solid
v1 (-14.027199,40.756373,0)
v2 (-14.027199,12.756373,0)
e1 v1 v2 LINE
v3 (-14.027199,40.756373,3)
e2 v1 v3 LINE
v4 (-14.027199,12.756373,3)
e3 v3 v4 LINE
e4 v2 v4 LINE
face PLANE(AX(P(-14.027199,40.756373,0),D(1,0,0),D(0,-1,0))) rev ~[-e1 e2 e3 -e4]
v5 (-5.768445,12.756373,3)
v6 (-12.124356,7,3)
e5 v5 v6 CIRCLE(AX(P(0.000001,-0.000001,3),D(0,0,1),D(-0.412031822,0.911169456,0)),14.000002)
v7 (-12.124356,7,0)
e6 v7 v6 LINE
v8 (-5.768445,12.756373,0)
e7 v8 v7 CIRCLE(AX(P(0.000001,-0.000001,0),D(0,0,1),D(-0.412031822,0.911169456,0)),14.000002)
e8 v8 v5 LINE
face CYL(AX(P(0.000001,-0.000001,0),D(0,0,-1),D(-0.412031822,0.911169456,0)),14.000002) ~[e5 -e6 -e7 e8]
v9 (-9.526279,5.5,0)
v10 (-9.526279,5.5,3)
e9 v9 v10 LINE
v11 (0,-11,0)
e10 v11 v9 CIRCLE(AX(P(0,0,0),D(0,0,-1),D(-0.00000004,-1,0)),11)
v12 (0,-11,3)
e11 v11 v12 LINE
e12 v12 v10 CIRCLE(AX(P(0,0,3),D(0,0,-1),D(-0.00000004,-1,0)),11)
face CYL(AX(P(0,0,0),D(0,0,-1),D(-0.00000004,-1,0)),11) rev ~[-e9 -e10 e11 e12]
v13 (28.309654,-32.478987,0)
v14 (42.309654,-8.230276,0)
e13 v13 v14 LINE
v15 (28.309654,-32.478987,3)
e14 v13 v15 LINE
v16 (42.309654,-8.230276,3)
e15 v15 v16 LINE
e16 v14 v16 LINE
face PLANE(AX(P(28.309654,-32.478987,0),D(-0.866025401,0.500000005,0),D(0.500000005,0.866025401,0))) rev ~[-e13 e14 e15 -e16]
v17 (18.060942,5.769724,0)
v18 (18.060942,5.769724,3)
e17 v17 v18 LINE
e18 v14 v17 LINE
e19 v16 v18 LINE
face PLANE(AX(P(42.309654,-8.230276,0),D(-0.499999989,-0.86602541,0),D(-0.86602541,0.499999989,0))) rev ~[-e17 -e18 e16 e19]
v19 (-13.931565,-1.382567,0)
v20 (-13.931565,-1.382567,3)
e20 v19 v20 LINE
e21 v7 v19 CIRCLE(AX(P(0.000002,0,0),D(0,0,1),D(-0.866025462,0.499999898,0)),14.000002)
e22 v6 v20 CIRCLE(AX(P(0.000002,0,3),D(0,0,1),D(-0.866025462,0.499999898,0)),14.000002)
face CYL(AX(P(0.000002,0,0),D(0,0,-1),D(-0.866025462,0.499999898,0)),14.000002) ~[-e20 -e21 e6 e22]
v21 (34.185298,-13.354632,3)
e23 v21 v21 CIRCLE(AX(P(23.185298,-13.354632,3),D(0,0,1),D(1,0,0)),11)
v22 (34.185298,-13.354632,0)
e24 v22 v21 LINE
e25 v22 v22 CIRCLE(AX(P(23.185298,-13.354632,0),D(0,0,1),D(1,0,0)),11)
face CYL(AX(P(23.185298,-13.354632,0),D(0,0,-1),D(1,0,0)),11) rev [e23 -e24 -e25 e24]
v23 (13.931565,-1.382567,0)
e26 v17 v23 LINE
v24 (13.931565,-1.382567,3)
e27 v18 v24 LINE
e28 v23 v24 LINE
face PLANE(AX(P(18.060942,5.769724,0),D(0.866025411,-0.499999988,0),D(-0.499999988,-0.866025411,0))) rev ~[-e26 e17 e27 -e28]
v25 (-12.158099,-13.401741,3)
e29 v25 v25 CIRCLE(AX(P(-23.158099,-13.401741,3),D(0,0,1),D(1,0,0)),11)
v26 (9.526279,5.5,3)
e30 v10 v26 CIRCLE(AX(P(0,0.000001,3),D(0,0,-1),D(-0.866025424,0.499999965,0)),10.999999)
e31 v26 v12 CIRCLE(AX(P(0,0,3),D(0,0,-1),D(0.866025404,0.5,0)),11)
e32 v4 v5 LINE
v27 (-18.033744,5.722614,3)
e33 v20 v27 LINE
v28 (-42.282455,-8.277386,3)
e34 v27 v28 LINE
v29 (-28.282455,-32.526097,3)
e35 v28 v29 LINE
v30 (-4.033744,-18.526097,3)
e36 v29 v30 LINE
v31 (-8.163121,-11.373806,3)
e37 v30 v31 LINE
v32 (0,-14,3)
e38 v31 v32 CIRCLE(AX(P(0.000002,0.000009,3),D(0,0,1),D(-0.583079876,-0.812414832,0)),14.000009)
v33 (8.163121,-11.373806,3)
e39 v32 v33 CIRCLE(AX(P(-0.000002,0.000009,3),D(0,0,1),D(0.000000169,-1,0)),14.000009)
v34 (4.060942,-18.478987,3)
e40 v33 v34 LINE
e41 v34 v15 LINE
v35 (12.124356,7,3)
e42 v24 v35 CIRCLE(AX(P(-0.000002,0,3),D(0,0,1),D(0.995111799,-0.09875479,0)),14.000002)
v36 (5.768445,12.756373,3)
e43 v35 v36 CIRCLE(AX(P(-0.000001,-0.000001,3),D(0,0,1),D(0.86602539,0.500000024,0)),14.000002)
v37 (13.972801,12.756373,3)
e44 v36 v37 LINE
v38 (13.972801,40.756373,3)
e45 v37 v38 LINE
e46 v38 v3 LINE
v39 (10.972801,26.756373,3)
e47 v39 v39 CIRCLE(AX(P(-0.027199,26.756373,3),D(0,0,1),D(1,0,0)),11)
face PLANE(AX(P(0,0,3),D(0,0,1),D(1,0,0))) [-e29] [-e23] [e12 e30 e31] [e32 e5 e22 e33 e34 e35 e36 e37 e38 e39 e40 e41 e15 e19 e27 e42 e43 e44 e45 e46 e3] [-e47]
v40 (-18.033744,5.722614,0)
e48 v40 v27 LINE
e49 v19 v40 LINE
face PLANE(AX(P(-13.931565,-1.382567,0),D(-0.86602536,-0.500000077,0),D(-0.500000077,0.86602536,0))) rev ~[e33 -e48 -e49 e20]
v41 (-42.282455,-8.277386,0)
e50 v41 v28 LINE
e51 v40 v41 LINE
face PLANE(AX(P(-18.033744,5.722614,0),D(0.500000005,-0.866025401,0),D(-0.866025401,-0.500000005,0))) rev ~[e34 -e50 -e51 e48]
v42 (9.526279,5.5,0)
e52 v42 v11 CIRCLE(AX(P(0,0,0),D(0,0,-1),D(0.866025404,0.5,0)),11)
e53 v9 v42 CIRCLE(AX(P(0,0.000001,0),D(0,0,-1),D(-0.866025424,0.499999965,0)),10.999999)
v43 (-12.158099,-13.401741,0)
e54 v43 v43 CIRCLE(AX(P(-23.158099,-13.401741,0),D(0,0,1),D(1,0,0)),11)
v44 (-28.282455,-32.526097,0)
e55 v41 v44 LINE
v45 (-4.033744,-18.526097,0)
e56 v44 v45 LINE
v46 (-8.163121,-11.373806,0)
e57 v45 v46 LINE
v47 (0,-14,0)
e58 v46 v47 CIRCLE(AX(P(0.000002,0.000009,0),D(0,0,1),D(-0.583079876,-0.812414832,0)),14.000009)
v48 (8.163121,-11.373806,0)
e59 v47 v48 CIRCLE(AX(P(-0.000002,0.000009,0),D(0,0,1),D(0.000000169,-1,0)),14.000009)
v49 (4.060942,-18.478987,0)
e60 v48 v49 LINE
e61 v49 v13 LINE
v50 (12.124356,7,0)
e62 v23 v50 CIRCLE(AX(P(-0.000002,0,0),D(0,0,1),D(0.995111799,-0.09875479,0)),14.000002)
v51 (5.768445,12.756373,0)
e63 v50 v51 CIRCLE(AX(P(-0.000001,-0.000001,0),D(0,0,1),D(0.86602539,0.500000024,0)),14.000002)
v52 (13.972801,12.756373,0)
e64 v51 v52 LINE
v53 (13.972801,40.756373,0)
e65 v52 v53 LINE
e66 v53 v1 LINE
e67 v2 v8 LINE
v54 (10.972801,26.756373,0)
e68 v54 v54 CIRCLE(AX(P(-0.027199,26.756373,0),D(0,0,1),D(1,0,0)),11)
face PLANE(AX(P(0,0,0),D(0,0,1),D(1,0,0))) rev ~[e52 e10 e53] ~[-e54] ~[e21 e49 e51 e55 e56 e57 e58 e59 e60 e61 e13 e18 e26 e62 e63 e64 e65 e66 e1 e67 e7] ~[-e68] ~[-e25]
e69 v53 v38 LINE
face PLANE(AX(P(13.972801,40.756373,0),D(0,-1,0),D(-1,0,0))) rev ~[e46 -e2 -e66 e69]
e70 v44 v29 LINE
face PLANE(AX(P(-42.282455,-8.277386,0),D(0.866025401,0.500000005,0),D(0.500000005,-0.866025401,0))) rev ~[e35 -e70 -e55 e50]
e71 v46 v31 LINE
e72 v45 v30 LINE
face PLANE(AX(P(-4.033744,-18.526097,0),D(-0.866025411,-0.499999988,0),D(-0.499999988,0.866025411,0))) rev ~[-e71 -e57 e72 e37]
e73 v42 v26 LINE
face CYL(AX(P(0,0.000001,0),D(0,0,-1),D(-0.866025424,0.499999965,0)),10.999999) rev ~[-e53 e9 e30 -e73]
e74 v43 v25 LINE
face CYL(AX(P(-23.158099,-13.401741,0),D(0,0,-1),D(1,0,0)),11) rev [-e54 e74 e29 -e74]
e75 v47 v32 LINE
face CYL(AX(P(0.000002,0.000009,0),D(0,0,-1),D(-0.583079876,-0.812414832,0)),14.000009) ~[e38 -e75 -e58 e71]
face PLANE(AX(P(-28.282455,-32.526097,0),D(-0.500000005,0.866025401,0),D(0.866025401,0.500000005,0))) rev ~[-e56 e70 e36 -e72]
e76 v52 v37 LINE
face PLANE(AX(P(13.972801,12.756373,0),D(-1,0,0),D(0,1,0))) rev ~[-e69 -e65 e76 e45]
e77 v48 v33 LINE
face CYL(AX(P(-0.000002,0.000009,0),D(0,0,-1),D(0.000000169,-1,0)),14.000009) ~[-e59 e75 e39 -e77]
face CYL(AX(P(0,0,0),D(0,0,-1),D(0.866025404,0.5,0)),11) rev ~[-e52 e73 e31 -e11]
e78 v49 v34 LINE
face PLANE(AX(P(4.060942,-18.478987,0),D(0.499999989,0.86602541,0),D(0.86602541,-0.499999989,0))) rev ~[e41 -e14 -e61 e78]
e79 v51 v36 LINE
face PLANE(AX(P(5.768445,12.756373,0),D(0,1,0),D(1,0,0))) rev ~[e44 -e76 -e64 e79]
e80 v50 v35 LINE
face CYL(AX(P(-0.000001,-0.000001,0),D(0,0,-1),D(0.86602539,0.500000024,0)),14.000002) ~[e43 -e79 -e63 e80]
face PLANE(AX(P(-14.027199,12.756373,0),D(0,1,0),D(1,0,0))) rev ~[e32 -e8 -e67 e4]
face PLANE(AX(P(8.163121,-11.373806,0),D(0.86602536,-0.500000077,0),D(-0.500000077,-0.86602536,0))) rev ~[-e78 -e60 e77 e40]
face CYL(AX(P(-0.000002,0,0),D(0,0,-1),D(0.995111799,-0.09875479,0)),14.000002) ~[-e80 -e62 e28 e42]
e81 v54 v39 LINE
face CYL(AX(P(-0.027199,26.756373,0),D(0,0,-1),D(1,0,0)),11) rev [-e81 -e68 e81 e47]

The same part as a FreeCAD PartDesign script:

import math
import FreeCAD as App
import Part
import Sketcher
from FreeCAD import Vector
Q = App.Units.Quantity

doc = App.newDocument("Part")
body = doc.addObject("PartDesign::Body", "Body")

sketch1 = body.newObject("Sketcher::SketchObject", "Sketch")
sketch1.AttachmentSupport = (doc.getObject("XY_Plane"), [""])
sketch1.MapMode = "FlatFace"
sketch1.addGeometry(Part.LineSegment(Vector(-14, 13, 0), Vector(-6, 13, 0)), False)
sketch1.addGeometry(Part.ArcOfCircle(Part.Circle(Vector(0, 0, 0), Vector(0, 0, 1), 14), math.radians(114), math.radians(150)), False)
sketch1.addGeometry(Part.ArcOfCircle(Part.Circle(Vector(0, 0, 0), Vector(0, 0, 1), 14), math.radians(150), math.radians(186)), False)
sketch1.addGeometry(Part.LineSegment(Vector(-14, -1, 0), Vector(-18, 6, 0)), False)
sketch1.addGeometry(Part.LineSegment(Vector(-18, 6, 0), Vector(-42, -8, 0)), False)
sketch1.addGeometry(Part.LineSegment(Vector(-42, -8, 0), Vector(-28, -33, 0)), False)
sketch1.addGeometry(Part.LineSegment(Vector(-28, -33, 0), Vector(-4, -19, 0)), False)
sketch1.addGeometry(Part.LineSegment(Vector(-4, -19, 0), Vector(-8, -11, 0)), False)
sketch1.addGeometry(Part.ArcOfCircle(Part.Circle(Vector(0, 0, 0), Vector(0, 0, 1), 14), math.radians(-126), math.radians(-90)), False)
sketch1.addGeometry(Part.ArcOfCircle(Part.Circle(Vector(0, 0, 0), Vector(0, 0, 1), 14), math.radians(-90), math.radians(-54)), False)
sketch1.addGeometry(Part.LineSegment(Vector(8, -11, 0), Vector(4, -18, 0)), False)
sketch1.addGeometry(Part.LineSegment(Vector(4, -18, 0), Vector(28, -32, 0)), False)
sketch1.addGeometry(Part.LineSegment(Vector(28, -32, 0), Vector(42, -8, 0)), False)
sketch1.addGeometry(Part.LineSegment(Vector(42, -8, 0), Vector(18, 6, 0)), False)
sketch1.addGeometry(Part.LineSegment(Vector(18, 6, 0), Vector(14, -1, 0)), False)
sketch1.addGeometry(Part.ArcOfCircle(Part.Circle(Vector(0, 0, 0), Vector(0, 0, 1), 14), math.radians(-6), math.radians(30)), False)
sketch1.addGeometry(Part.ArcOfCircle(Part.Circle(Vector(0, 0, 0), Vector(0, 0, 1), 14), math.radians(30), math.radians(66)), False)
sketch1.addGeometry(Part.LineSegment(Vector(6, 13, 0), Vector(14, 13, 0)), False)
sketch1.addGeometry(Part.LineSegment(Vector(14, 13, 0), Vector(14, 41, 0)), False)
sketch1.addGeometry(Part.LineSegment(Vector(14, 41, 0), Vector(-14, 41, 0)), False)
sketch1.addGeometry(Part.LineSegment(Vector(-14, 41, 0), Vector(-14, 13, 0)), False)
sketch1.addGeometry(Part.Circle(Vector(-23, -13, 0), Vector(0, 0, 1), 11), False)
sketch1.addGeometry(Part.ArcOfCircle(Part.Circle(Vector(0, 0, 0), Vector(0, 0, 1), 11), math.radians(150), math.radians(270)), False)
sketch1.addGeometry(Part.ArcOfCircle(Part.Circle(Vector(0, 0, 0), Vector(0, 0, 1), 11), math.radians(30), math.radians(150)), False)
sketch1.addGeometry(Part.ArcOfCircle(Part.Circle(Vector(0, 0, 0), Vector(0, 0, 1), 11), math.radians(-90), math.radians(30)), False)
sketch1.addGeometry(Part.Circle(Vector(23, -13, 0), Vector(0, 0, 1), 11), False)
sketch1.addGeometry(Part.Circle(Vector(0, 27, 0), Vector(0, 0, 1), 11), False)
sketch1.addConstraint(Sketcher.Constraint("Coincident", 0, 2, 1, 1))
sketch1.addConstraint(Sketcher.Constraint("Tangent", 1, 2, 2, 1))
sketch1.addConstraint(Sketcher.Constraint("Coincident", 2, 2, 3, 1))
sketch1.addConstraint(Sketcher.Constraint("Coincident", 3, 2, 4, 1))
sketch1.addConstraint(Sketcher.Constraint("Coincident", 4, 2, 5, 1))
sketch1.addConstraint(Sketcher.Constraint("Coincident", 5, 2, 6, 1))
sketch1.addConstraint(Sketcher.Constraint("Coincident", 6, 2, 7, 1))
sketch1.addConstraint(Sketcher.Constraint("Coincident", 7, 2, 8, 1))
sketch1.addConstraint(Sketcher.Constraint("Tangent", 8, 2, 9, 1))
sketch1.addConstraint(Sketcher.Constraint("Coincident", 9, 2, 10, 1))
sketch1.addConstraint(Sketcher.Constraint("Coincident", 10, 2, 11, 1))
sketch1.addConstraint(Sketcher.Constraint("Coincident", 11, 2, 12, 1))
sketch1.addConstraint(Sketcher.Constraint("Coincident", 12, 2, 13, 1))
sketch1.addConstraint(Sketcher.Constraint("Coincident", 13, 2, 14, 1))
sketch1.addConstraint(Sketcher.Constraint("Coincident", 14, 2, 15, 1))
sketch1.addConstraint(Sketcher.Constraint("Tangent", 15, 2, 16, 1))
sketch1.addConstraint(Sketcher.Constraint("Coincident", 16, 2, 17, 1))
sketch1.addConstraint(Sketcher.Constraint("Coincident", 17, 2, 18, 1))
sketch1.addConstraint(Sketcher.Constraint("Coincident", 18, 2, 19, 1))
sketch1.addConstraint(Sketcher.Constraint("Coincident", 19, 2, 20, 1))
sketch1.addConstraint(Sketcher.Constraint("Coincident", 20, 2, 0, 1))
sketch1.addConstraint(Sketcher.Constraint("Tangent", 22, 1, 23, 2))
sketch1.addConstraint(Sketcher.Constraint("Tangent", 23, 1, 24, 2))
sketch1.addConstraint(Sketcher.Constraint("Tangent", 24, 1, 22, 2))
sketch1.addConstraint(Sketcher.Constraint("Horizontal", 0))
sketch1.addConstraint(Sketcher.Constraint("Horizontal", 17))
sketch1.addConstraint(Sketcher.Constraint("Vertical", 18))
sketch1.addConstraint(Sketcher.Constraint("Horizontal", 19))
sketch1.addConstraint(Sketcher.Constraint("Vertical", 20))
sketch1.addConstraint(Sketcher.Constraint("Coincident", 1, 3, -1, 1))
sketch1.addConstraint(Sketcher.Constraint("Coincident", 8, 3, -1, 1))
sketch1.addConstraint(Sketcher.Constraint("Coincident", 15, 3, -1, 1))
sketch1.addConstraint(Sketcher.Constraint("Coincident", 22, 3, -1, 1))
sketch1.addConstraint(Sketcher.Constraint("Coincident", 9, 3, 2, 3))
sketch1.addConstraint(Sketcher.Constraint("Equal", 2, 15))
sketch1.addConstraint(Sketcher.Constraint("Equal", 15, 16))
sketch1.addConstraint(Sketcher.Constraint("Equal", 21, 22))
sketch1.addConstraint(Sketcher.Constraint("Equal", 24, 25))
sketch1.addConstraint(Sketcher.Constraint("Equal", 25, 26))
sketch1.addConstraint(Sketcher.Constraint("PointOnObject", 8, 2, -2))
sketch1.addConstraint(Sketcher.Constraint("PointOnObject", 24, 1, -2))
sketch1.addConstraint(Sketcher.Constraint("Perpendicular", 3, 4))
sketch1.addConstraint(Sketcher.Constraint("Perpendicular", 4, 5))
sketch1.addConstraint(Sketcher.Constraint("Perpendicular", 5, 6))
sketch1.addConstraint(Sketcher.Constraint("Perpendicular", 6, 7))
sketch1.addConstraint(Sketcher.Constraint("Perpendicular", 10, 11))
sketch1.addConstraint(Sketcher.Constraint("Perpendicular", 11, 12))
sketch1.addConstraint(Sketcher.Constraint("Perpendicular", 12, 13))
sketch1.addConstraint(Sketcher.Constraint("Perpendicular", 13, 14))
sketch1.addConstraint(Sketcher.Constraint("Horizontal", 7, 2, 9, 2))
sketch1.addConstraint(Sketcher.Constraint("Horizontal", 2, 2, 14, 2))
sketch1.addConstraint(Sketcher.Constraint("Horizontal", 1, 2, 15, 2))
sketch1.addConstraint(Sketcher.Constraint("Horizontal", 0, 2, 16, 2))
sketch1.addConstraint(Sketcher.Constraint("Horizontal", 22, 1, 23, 1))
sketch1.addConstraint(Sketcher.Constraint("Equal", 19, 18))
sketch1.addConstraint(Sketcher.Constraint("Equal", 4, 5))
sketch1.addConstraint(Sketcher.Constraint("Equal", 5, 6))
sketch1.addConstraint(Sketcher.Constraint("Equal", 3, 10))
sketch1.addConstraint(Sketcher.Constraint("Equal", 6, 11))
sketch1.addConstraint(Sketcher.Constraint("Equal", 11, 12))
sketch1.addConstraint(Sketcher.Constraint("Equal", 12, 13))
sketch1.addConstraint(Sketcher.Constraint("Diameter", 21, Q("22 mm")))
sketch1.addConstraint(Sketcher.Constraint("DistanceX", 19, 2, 19, 1, Q("28 mm")))
sketch1.addConstraint(Sketcher.Constraint("Angle", 3, Q("120.000005 deg")))
sketch1.addConstraint(Sketcher.Constraint("Distance", 4, Q("28 mm")))
sketch1.addConstraint(Sketcher.Constraint("DistanceY", -1, 1, 1, 2, Q("7 mm")))
sketch1.addConstraint(Sketcher.Constraint("DistanceY", 8, 2, -1, 1, Q("14 mm")))
sketch1.addConstraint(Sketcher.Constraint("DistanceX", 26, 3, 18, 2, Q("14 mm")))
sketch1.addConstraint(Sketcher.Constraint("DistanceY", 26, 3, 18, 2, Q("14 mm")))
sketch1.addConstraint(Sketcher.Constraint("DistanceY", -1, 1, 22, 1, Q("5.5 mm")))
sketch1.addConstraint(Sketcher.Constraint("Radius", 1, Q("14.000002 mm")))
sketch1.addConstraint(Sketcher.Constraint("DistanceX", 21, 3, -1, 1, Q("23.158099 mm")))
sketch1.addConstraint(Sketcher.Constraint("DistanceX", 26, 3, -1, 1, Q("0.027199 mm")))
sketch1.addConstraint(Sketcher.Constraint("DistanceX", 24, 3, 25, 3, Q("23.185298 mm")))
sketch1.addConstraint(Sketcher.Constraint("DistanceX", 3, 2, 0, 2, Q("12.265299 mm")))
sketch1.addConstraint(Sketcher.Constraint("DistanceX", 4, 2, 1, 2, Q("30.158099 mm")))
sketch1.addConstraint(Sketcher.Constraint("DistanceY", 21, 3, -1, 1, Q("13.401741 mm")))
sketch1.addConstraint(Sketcher.Constraint("DistanceX", 7, 2, -1, 1, Q("8.163121 mm")))
sketch1.addConstraint(Sketcher.Constraint("DistanceY", 25, 3, 1, 3, Q("13.354631 mm")))
pad1 = body.newObject("PartDesign::Pad", "Pad")
pad1.Profile = sketch1
pad1.Length = 3

doc.recompute()
